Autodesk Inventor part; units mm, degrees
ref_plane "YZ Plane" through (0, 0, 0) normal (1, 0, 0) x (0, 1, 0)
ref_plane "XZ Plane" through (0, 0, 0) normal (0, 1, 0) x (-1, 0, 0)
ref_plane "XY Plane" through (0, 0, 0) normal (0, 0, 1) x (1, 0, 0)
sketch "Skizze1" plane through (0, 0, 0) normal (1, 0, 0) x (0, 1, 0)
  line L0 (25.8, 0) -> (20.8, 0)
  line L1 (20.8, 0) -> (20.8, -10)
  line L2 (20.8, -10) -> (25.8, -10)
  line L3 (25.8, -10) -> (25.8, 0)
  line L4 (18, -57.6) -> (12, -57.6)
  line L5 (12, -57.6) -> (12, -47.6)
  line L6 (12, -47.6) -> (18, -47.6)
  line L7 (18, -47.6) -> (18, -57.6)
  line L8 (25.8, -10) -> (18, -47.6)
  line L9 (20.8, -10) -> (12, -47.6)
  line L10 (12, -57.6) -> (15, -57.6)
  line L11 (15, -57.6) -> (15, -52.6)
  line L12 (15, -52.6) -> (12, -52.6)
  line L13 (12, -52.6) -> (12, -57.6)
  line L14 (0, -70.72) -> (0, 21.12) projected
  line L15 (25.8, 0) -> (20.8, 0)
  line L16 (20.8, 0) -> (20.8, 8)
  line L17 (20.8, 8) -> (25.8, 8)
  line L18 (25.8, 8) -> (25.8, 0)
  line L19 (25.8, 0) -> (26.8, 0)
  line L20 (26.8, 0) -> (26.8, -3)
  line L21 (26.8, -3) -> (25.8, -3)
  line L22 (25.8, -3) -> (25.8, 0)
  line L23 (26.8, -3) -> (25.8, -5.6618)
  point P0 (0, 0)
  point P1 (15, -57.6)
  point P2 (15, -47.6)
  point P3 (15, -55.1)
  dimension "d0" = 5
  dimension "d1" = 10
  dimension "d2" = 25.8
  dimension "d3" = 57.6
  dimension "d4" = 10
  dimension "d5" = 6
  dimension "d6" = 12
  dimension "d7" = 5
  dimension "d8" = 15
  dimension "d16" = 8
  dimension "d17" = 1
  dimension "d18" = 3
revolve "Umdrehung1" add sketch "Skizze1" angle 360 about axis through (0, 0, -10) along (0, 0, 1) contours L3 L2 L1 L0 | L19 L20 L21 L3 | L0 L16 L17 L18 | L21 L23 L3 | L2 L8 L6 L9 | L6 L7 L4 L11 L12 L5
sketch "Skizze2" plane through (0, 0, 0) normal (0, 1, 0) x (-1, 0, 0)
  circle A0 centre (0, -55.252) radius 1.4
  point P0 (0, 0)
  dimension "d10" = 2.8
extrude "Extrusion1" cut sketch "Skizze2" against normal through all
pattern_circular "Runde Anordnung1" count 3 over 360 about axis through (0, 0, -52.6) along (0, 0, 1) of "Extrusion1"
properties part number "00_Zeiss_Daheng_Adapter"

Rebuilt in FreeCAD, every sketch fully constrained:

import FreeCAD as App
import Part
import Sketcher

V = App.Vector
Q = App.Units.Quantity

doc = App.newDocument("Part")
params = doc.addObject("Spreadsheet::Sheet", "Params")
for row, (alias, value) in enumerate([
    ("sketch1_width", "1 mm"),
    ("sketch1_width2", "5 mm"),
    ("sketch1_width3", "3 mm"),
    ("sketch1_height", "8 mm"),
    ("revolution_angle", "360 deg"),
    ("sketch2_diameter", "2.8 mm"),
], start=1):
    params.set(f"A{row}", alias)
    params.set(f"B{row}", "=" + value)
    params.setAlias(f"B{row}", alias)

body = doc.addObject("PartDesign::Body", "Body")

# Sketch on YZ plane
sketch1 = doc.addObject("Sketcher::SketchObject", "Sketch")
body.addObject(sketch1)
sketch1.AttachmentSupport = (doc.YZ_Plane, [""])
sketch1.MapMode = "FlatFace"
sketch1.addGeometry([
    Part.LineSegment(V(25.8, -10, 0), V(25.8, -5.6618, 0)),  # 0
    Part.LineSegment(V(25.8, -5.6618, 0), V(26.8, -3, 0)),  # 1
    Part.LineSegment(V(26.8, -3, 0), V(26.8, 0, 0)),  # 2
    Part.LineSegment(V(26.8, 0, 0), V(25.8, 0, 0)),  # 3
    Part.LineSegment(V(25.8, 0, 0), V(25.8, 8, 0)),  # 4
    Part.LineSegment(V(25.8, 8, 0), V(20.8, 8, 0)),  # 5
    Part.LineSegment(V(20.8, 8, 0), V(20.8, -10, 0)),  # 6
    Part.LineSegment(V(20.8, -10, 0), V(12, -47.6, 0)),  # 7
    Part.LineSegment(V(12, -47.6, 0), V(12, -52.6, 0)),  # 8
    Part.LineSegment(V(12, -52.6, 0), V(15, -52.6, 0)),  # 9
    Part.LineSegment(V(15, -52.6, 0), V(15, -57.6, 0)),  # 10
    Part.LineSegment(V(15, -57.6, 0), V(18, -57.6, 0)),  # 11
    Part.LineSegment(V(18, -57.6, 0), V(18, -47.6, 0)),  # 12
    Part.LineSegment(V(18, -47.6, 0), V(25.8, -10, 0)),  # 13
], False)
sketch1.addConstraint([
    Sketcher.Constraint("Coincident", 0, 2, 1, 1),
    Sketcher.Constraint("Coincident", 1, 2, 2, 1),
    Sketcher.Constraint("Coincident", 2, 2, 3, 1),
    Sketcher.Constraint("Coincident", 3, 2, 4, 1),
    Sketcher.Constraint("Coincident", 4, 2, 5, 1),
    Sketcher.Constraint("Coincident", 5, 2, 6, 1),
    Sketcher.Constraint("Coincident", 6, 2, 7, 1),
    Sketcher.Constraint("Coincident", 7, 2, 8, 1),
    Sketcher.Constraint("Coincident", 8, 2, 9, 1),
    Sketcher.Constraint("Coincident", 9, 2, 10, 1),
    Sketcher.Constraint("Coincident", 10, 2, 11, 1),
    Sketcher.Constraint("Coincident", 11, 2, 12, 1),
    Sketcher.Constraint("Coincident", 12, 2, 13, 1),
    Sketcher.Constraint("Coincident", 13, 2, 0, 1),
    Sketcher.Constraint("Vertical", 0),
    Sketcher.Constraint("Vertical", 2),
    Sketcher.Constraint("Horizontal", 3),
    Sketcher.Constraint("Vertical", 4),
    Sketcher.Constraint("Horizontal", 5),
    Sketcher.Constraint("Vertical", 6),
    Sketcher.Constraint("Vertical", 8),
    Sketcher.Constraint("Horizontal", 9),
    Sketcher.Constraint("Vertical", 10),
    Sketcher.Constraint("Horizontal", 11),
    Sketcher.Constraint("Vertical", 12),
    Sketcher.Constraint("PointOnObject", 2, 2, -1),
    Sketcher.Constraint("Horizontal", 7, 2, 12, 2),
    Sketcher.Constraint("Horizontal", 6, 2, 13, 2),
    Sketcher.Constraint("Vertical", 0, 2, 3, 2),
    Sketcher.Constraint("Equal", 9, 11),
    Sketcher.Constraint("Equal", 11, 2),
    Sketcher.Constraint("Equal", 5, 8),
    Sketcher.Constraint("Equal", 8, 10),
    Sketcher.Constraint("DistanceX", 3, 2, 3, 1, Q("1 mm")),
    Sketcher.Constraint("DistanceX", 5, 2, 5, 1, Q("5 mm")),
    Sketcher.Constraint("DistanceX", 9, 1, 9, 2, Q("3 mm")),
    Sketcher.Constraint("DistanceY", 4, 1, 4, 2, Q("8 mm")),
    Sketcher.Constraint("DistanceY", 6, 2, -1, 1, Q("10 mm")),
    Sketcher.Constraint("DistanceX", -1, 1, 7, 2, Q("12 mm")),
    Sketcher.Constraint("DistanceX", -1, 1, 0, 2, Q("25.8 mm")),
    Sketcher.Constraint("DistanceY", 10, 2, -1, 1, Q("57.6 mm")),
    Sketcher.Constraint("Angle", 1, Q("69.4095 deg")),
])
sketch1.setExpression("Constraints[33]", "Params.sketch1_width")
sketch1.setExpression("Constraints[34]", "Params.sketch1_width2")
sketch1.setExpression("Constraints[35]", "Params.sketch1_width3")
sketch1.setExpression("Constraints[36]", "Params.sketch1_height")
revolution = doc.addObject("PartDesign::Revolution", "Revolution")
body.addObject(revolution)
revolution.Profile = sketch1
revolution.ReferenceAxis = (sketch1, ["V_Axis"])
revolution.setExpression("Angle", "Params.revolution_angle")

# Sketch on XZ plane
sketch2 = doc.addObject("Sketcher::SketchObject", "Sketch001")
body.addObject(sketch2)
sketch2.AttachmentSupport = (doc.XZ_Plane, [""])
sketch2.MapMode = "FlatFace"
sketch2.addGeometry(Part.Circle(V(0, -55.252, 0), V(0, 0, 1), 1.4), False)
sketch2.addConstraint([
    Sketcher.Constraint("PointOnObject", 0, 3, -2),
    Sketcher.Constraint("Diameter", 0, Q("2.8 mm")),
    Sketcher.Constraint("DistanceY", 0, 3, -1, 1, Q("55.252 mm")),
])
sketch2.setExpression("Constraints[1]", "Params.sketch2_diameter")
pocket1 = doc.addObject("PartDesign::Pocket", "Pocket")
body.addObject(pocket1)
pocket1.Profile = sketch2
pocket1.Type = "ThroughAll"
pocket1.Reversed = True
doc.recompute()

polarpattern = doc.addObject("PartDesign::PolarPattern", "PolarPattern")
body.addObject(polarpattern)
polarpattern.Originals = [pocket1]
polarpattern.Axis = (doc.Z_Axis, [""])
polarpattern.Angle = 360
polarpattern.Occurrences = 3
body.Tip = polarpattern

doc.recompute()
